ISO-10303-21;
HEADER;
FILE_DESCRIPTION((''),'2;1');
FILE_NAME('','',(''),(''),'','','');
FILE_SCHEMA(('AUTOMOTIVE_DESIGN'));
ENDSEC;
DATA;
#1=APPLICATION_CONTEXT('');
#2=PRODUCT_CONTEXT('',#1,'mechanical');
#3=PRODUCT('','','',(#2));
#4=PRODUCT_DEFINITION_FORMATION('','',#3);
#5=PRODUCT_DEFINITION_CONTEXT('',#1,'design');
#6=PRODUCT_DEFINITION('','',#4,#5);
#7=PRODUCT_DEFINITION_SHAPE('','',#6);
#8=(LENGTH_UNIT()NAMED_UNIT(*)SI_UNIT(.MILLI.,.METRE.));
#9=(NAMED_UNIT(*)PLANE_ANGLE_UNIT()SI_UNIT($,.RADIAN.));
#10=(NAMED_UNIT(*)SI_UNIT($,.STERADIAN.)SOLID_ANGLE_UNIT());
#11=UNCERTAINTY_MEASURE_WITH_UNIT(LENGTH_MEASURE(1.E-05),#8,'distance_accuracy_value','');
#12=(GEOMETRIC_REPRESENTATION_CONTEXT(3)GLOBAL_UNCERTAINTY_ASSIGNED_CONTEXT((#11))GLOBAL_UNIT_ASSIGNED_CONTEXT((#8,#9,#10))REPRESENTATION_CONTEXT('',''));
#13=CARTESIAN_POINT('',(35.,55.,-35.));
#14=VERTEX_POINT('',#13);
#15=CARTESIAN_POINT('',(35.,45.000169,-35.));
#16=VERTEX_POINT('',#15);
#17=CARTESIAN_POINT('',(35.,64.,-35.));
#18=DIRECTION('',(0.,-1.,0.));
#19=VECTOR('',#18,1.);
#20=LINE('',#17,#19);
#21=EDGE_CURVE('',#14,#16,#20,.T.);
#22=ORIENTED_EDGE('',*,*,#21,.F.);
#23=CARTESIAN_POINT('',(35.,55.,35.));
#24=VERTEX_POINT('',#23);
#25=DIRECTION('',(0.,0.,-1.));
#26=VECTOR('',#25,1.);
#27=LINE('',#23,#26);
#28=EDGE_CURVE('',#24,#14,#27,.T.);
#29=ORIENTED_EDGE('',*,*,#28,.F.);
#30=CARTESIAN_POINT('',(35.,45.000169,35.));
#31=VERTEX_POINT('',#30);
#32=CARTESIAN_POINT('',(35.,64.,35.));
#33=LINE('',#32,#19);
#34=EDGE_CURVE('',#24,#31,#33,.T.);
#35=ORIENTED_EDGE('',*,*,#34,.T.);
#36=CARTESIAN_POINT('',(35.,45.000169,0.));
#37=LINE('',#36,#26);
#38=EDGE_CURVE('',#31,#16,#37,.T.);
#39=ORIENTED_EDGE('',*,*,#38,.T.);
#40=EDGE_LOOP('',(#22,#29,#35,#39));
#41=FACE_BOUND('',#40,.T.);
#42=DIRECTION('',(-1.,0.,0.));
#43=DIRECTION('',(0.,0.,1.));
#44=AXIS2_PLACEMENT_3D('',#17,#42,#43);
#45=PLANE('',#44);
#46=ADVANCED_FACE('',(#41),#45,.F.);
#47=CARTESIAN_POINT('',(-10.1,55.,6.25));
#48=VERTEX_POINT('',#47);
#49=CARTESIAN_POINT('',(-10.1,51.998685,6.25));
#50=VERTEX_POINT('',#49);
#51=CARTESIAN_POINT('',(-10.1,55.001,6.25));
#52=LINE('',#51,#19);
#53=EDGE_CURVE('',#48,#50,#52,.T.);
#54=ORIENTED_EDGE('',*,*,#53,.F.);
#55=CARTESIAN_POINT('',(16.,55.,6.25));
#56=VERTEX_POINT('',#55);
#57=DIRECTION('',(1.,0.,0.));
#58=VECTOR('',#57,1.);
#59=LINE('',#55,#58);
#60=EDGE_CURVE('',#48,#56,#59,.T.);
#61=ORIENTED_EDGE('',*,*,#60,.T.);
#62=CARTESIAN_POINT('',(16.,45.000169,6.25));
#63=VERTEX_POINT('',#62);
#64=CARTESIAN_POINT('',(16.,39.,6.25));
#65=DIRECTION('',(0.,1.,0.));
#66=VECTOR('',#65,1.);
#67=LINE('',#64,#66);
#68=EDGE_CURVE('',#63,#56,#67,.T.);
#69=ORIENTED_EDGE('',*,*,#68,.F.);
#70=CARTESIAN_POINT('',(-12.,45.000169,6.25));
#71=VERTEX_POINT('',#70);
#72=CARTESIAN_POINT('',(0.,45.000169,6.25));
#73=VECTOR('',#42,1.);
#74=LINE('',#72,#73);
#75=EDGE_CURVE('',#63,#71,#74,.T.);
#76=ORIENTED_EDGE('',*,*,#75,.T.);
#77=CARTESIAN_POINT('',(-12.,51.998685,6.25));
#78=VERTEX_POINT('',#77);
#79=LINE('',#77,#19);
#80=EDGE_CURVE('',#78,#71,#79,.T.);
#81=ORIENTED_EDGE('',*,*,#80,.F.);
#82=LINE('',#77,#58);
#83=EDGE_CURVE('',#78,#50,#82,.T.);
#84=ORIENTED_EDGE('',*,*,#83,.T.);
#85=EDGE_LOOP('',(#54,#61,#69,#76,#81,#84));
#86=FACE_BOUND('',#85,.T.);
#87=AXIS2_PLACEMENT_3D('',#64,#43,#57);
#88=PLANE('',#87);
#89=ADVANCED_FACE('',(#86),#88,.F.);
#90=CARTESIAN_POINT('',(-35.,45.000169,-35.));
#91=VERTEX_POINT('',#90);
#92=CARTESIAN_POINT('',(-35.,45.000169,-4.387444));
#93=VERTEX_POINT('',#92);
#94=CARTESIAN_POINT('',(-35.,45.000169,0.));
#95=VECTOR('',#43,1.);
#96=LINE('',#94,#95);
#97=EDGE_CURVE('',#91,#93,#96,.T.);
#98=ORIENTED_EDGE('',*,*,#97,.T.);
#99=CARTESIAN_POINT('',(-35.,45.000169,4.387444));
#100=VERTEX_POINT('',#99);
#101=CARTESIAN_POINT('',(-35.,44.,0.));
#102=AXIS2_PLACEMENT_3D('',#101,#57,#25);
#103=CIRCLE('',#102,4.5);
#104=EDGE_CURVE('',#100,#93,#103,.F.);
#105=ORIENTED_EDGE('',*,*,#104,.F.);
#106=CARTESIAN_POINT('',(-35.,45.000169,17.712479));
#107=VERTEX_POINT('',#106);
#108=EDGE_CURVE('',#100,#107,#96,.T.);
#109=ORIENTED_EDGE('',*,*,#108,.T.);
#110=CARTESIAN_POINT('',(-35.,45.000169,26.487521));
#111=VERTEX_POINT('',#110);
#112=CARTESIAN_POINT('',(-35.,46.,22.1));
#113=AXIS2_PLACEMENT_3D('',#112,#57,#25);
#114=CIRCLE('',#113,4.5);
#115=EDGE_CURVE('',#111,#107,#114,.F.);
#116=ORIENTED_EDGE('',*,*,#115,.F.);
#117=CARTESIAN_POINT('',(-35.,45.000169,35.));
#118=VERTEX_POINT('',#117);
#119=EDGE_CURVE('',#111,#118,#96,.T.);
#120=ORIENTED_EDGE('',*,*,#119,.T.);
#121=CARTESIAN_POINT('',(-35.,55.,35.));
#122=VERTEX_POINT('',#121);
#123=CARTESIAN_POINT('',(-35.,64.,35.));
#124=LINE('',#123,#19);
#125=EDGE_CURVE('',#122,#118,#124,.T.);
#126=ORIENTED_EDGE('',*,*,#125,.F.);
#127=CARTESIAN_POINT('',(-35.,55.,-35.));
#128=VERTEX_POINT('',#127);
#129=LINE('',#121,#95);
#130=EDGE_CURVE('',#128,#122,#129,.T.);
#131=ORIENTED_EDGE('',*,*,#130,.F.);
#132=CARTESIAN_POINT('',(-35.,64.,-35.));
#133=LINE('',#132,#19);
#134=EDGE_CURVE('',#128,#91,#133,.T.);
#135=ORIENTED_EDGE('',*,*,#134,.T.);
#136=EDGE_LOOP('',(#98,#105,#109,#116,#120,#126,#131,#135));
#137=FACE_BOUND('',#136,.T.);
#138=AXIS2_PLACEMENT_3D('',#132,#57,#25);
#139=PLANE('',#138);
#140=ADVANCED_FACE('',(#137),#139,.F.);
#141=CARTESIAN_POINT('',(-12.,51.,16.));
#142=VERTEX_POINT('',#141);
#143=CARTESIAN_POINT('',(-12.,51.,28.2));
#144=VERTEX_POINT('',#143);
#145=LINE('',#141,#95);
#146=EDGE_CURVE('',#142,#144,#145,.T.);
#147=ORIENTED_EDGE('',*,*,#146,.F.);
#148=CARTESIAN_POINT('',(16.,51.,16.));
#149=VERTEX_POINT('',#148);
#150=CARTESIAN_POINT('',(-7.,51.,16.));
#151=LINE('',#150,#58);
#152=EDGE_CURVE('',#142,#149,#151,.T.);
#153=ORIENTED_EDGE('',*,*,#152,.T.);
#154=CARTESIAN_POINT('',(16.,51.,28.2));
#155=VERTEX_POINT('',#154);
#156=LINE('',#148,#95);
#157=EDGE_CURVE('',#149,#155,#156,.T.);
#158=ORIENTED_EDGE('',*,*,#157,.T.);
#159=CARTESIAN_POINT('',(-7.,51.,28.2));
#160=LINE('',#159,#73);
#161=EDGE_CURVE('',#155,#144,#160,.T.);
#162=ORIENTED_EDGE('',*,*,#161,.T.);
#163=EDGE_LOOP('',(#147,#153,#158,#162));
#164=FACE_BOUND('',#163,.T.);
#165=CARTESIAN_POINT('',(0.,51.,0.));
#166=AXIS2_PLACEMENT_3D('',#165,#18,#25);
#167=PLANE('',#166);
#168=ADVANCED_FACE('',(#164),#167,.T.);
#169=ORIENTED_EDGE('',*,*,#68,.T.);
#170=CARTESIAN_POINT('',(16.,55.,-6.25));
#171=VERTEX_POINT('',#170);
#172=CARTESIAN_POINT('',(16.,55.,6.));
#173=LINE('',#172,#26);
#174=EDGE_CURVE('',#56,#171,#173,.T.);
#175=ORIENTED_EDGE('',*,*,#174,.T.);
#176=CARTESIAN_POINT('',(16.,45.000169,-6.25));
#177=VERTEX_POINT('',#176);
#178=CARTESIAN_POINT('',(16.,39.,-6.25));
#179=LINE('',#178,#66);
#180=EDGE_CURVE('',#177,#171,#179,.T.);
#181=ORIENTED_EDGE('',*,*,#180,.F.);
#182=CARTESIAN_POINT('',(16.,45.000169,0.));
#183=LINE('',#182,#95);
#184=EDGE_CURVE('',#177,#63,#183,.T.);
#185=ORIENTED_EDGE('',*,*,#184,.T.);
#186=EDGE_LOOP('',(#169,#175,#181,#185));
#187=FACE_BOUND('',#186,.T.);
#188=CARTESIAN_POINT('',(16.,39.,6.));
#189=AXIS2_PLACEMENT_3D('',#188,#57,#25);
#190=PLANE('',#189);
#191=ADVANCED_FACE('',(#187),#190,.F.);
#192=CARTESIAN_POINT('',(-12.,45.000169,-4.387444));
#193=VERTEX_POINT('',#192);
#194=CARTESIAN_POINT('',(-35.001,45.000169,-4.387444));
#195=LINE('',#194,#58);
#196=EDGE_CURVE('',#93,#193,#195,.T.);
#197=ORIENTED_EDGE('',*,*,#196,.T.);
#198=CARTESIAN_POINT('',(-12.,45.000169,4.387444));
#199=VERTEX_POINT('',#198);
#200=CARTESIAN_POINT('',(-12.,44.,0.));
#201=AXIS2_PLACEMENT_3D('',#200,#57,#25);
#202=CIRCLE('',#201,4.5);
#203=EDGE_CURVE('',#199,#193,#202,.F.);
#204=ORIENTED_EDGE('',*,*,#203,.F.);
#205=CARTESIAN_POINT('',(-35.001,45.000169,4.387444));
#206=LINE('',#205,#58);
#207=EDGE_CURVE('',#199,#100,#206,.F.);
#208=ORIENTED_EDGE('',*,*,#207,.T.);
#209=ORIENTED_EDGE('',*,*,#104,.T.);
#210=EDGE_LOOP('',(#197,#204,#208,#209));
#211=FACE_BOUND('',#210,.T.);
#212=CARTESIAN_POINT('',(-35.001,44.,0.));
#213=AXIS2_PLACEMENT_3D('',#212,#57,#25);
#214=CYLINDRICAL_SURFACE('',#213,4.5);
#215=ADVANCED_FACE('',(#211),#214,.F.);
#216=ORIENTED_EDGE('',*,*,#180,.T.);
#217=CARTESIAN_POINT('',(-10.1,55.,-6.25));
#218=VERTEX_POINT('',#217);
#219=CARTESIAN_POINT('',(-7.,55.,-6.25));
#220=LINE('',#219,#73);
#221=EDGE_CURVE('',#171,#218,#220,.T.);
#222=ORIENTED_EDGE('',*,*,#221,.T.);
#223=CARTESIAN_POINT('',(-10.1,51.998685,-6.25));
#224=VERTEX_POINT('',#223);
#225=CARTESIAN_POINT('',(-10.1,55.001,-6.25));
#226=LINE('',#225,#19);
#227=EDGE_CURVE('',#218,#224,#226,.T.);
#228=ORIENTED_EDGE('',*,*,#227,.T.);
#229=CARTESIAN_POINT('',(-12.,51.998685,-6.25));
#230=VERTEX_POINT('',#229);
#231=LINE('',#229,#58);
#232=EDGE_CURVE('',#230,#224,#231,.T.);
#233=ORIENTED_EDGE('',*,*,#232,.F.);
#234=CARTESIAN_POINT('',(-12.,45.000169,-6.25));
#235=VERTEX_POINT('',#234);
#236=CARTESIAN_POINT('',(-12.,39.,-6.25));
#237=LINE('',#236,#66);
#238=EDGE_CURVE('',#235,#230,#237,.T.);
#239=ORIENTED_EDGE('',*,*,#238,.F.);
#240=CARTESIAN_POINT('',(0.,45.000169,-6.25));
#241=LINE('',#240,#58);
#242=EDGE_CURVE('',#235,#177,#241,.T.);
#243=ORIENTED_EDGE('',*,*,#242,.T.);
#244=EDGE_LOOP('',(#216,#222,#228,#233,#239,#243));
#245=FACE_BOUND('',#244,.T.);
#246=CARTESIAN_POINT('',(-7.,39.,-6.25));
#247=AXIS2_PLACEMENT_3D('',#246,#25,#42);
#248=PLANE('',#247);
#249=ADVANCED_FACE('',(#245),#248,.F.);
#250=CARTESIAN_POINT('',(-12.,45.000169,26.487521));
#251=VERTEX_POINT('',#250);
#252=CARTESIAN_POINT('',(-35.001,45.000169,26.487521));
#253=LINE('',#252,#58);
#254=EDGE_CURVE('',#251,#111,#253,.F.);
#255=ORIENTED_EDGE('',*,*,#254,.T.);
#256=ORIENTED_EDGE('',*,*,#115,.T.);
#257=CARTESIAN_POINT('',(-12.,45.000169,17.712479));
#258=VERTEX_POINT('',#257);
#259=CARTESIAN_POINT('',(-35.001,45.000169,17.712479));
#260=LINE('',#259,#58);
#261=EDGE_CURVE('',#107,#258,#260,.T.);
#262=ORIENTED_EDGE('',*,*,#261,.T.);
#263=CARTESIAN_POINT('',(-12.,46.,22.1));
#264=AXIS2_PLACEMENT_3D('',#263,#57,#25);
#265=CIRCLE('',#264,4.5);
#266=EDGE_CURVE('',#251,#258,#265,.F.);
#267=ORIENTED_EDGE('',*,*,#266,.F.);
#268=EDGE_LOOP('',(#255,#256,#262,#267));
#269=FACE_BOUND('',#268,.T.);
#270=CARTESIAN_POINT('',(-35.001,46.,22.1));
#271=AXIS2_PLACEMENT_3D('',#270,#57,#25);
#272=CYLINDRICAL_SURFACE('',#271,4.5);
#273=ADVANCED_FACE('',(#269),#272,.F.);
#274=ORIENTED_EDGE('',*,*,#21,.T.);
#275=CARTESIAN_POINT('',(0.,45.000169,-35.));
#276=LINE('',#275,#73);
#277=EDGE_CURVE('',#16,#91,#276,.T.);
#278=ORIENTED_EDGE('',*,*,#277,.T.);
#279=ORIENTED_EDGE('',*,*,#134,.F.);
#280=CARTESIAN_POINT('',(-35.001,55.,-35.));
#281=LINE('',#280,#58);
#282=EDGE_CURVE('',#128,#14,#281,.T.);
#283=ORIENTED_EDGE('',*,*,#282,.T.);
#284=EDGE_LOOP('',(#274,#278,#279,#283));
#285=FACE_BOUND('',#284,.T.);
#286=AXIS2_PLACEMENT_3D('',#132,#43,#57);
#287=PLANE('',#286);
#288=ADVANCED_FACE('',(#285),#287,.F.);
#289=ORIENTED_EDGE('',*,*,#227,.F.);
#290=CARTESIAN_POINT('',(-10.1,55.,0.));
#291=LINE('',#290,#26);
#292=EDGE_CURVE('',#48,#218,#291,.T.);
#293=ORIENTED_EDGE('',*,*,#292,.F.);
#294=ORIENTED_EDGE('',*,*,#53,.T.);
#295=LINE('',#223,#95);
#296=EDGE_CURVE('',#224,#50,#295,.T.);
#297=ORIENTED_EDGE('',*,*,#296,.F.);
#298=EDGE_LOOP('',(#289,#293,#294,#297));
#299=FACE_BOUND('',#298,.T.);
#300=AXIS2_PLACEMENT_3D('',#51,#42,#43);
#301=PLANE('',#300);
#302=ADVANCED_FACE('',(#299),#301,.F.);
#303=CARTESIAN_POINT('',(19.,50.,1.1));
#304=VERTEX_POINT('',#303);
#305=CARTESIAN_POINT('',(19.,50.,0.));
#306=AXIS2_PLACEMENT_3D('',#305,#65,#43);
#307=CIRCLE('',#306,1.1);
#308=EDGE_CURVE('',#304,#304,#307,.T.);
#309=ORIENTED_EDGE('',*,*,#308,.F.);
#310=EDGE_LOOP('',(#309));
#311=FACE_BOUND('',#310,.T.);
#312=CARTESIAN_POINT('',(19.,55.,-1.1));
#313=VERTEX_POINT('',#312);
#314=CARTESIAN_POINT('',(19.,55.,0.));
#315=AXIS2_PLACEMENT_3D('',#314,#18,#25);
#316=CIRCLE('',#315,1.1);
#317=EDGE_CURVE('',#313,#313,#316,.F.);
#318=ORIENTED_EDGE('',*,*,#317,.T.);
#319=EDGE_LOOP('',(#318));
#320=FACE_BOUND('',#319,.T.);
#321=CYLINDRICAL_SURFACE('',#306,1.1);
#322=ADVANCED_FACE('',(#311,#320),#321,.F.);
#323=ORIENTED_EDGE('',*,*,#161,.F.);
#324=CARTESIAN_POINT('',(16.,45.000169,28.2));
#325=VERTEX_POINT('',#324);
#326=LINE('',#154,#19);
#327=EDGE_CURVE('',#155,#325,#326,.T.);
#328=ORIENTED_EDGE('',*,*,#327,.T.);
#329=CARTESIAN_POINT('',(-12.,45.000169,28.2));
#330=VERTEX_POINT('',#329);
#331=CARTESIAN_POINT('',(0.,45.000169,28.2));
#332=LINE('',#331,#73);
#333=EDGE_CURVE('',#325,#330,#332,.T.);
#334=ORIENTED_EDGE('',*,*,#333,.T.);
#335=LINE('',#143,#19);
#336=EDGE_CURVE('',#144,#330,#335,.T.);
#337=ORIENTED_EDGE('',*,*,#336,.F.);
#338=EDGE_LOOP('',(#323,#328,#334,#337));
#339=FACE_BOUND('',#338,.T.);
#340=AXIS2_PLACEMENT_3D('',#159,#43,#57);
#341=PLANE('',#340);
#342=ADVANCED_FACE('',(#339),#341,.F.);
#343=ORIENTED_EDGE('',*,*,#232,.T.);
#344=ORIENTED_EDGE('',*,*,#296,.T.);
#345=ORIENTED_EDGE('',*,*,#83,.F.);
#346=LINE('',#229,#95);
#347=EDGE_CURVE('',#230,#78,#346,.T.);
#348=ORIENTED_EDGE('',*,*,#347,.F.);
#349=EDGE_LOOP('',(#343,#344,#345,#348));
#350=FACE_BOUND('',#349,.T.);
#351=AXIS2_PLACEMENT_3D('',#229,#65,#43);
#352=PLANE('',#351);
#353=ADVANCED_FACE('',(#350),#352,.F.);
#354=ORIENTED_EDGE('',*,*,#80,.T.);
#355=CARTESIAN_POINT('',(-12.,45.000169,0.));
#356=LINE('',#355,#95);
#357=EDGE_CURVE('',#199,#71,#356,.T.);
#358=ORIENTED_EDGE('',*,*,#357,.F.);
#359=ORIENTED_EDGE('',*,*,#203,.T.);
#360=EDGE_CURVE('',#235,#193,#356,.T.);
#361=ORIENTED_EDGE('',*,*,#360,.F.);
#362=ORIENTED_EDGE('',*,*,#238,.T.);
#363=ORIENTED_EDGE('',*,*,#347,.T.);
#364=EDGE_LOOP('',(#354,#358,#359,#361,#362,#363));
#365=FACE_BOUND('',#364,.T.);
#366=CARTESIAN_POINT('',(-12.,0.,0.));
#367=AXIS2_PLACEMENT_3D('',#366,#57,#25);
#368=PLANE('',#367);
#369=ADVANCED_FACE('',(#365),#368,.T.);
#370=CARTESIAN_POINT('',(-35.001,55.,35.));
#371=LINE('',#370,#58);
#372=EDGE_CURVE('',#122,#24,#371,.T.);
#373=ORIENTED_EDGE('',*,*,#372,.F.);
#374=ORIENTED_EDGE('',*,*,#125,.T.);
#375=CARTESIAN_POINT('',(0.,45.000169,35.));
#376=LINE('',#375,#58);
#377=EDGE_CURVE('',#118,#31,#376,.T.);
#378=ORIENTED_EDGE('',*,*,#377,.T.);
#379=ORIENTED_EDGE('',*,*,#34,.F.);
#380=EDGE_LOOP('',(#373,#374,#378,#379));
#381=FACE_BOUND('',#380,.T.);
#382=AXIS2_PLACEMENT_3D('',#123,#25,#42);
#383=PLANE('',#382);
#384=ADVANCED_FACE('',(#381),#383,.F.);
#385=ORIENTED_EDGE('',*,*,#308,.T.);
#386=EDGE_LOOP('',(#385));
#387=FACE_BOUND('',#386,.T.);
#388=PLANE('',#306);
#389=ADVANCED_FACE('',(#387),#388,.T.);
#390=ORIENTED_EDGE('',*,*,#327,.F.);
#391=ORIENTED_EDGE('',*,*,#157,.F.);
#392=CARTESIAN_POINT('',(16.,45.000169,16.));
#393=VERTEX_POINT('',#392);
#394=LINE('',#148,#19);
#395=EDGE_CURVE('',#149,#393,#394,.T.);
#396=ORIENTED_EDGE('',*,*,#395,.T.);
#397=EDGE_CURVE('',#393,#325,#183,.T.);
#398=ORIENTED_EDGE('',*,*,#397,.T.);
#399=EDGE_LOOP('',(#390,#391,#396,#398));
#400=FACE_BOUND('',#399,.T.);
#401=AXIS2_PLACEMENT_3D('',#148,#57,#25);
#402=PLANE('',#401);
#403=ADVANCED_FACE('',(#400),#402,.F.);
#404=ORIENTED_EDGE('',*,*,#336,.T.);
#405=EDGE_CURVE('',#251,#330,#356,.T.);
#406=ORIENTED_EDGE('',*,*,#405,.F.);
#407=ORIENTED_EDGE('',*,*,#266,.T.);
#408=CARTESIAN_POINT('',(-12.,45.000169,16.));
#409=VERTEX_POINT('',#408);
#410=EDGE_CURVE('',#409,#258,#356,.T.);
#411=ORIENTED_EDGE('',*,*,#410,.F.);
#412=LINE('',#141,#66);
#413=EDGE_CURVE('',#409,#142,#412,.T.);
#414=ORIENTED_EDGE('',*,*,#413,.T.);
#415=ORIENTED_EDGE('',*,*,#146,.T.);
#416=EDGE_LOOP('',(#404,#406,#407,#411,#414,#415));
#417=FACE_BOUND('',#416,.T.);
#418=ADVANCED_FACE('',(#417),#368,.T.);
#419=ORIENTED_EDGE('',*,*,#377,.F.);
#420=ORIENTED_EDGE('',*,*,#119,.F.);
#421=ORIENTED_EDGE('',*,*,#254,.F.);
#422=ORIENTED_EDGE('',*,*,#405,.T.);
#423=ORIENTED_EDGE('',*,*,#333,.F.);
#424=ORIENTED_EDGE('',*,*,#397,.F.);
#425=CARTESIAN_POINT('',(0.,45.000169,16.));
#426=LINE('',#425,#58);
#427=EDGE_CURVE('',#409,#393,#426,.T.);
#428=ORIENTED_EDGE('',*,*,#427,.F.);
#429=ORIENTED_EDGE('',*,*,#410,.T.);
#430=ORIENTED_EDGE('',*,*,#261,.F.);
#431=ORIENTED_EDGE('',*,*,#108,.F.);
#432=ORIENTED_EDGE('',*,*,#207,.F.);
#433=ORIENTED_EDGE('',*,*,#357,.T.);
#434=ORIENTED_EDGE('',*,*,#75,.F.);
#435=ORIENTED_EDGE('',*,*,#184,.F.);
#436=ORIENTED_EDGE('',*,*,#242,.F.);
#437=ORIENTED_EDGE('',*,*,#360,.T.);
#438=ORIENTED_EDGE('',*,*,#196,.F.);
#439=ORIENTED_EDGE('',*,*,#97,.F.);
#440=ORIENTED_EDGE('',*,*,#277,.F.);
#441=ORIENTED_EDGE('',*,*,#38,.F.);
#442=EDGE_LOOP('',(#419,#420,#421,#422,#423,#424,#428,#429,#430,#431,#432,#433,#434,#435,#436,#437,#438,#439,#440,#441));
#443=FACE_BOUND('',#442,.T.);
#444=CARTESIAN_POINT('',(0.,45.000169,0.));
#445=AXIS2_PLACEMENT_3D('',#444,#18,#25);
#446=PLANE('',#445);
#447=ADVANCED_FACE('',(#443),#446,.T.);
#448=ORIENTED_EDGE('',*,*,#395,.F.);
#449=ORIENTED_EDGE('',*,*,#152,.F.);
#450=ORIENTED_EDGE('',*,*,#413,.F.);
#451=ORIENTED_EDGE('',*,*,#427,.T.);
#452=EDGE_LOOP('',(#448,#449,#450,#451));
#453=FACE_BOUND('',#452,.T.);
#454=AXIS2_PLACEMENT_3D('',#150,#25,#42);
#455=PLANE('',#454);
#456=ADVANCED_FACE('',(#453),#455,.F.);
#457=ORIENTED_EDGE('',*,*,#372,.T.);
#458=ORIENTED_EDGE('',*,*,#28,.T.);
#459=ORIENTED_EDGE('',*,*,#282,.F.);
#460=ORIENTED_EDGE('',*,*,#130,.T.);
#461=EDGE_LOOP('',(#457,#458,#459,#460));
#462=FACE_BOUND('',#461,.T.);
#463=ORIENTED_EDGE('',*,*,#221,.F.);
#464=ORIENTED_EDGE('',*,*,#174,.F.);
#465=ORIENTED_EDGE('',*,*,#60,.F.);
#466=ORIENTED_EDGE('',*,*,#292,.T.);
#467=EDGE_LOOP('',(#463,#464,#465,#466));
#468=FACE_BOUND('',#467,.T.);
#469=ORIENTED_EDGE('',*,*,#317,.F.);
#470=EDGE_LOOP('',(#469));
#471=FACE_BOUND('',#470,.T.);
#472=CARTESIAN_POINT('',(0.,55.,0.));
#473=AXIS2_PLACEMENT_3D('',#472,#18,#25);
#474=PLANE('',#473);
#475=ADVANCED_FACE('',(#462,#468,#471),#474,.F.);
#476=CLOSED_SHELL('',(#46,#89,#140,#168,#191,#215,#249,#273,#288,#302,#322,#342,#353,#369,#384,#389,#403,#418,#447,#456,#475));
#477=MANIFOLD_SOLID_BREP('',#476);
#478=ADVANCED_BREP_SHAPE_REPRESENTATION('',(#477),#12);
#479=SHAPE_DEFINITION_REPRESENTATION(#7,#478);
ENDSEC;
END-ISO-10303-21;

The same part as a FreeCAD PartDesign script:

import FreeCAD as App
import Part
import Sketcher
from FreeCAD import Vector
Q = App.Units.Quantity

doc = App.newDocument("Part")
body = doc.addObject("PartDesign::Body", "Body")

# Sketch on XZ plane
sketch1 = doc.addObject("Sketcher::SketchObject", "Sketch")
body.addObject(sketch1)
sketch1.AttachmentSupport = (doc.XZ_Plane, [""])
sketch1.MapMode = "FlatFace"
sketch1.addGeometry(Part.LineSegment(Vector(-32, -32, 0), Vector(-32, 32, 0)), False)
sketch1.addGeometry(Part.LineSegment(Vector(-32, 32, 0), Vector(32, 32, 0)), False)
sketch1.addGeometry(Part.LineSegment(Vector(32, 32, 0), Vector(32, -32, 0)), False)
sketch1.addGeometry(Part.LineSegment(Vector(32, -32, 0), Vector(-32, -32, 0)), False)
sketch1.addConstraint(Sketcher.Constraint("Coincident", 0, 2, 1, 1))
sketch1.addConstraint(Sketcher.Constraint("Coincident", 1, 2, 2, 1))
sketch1.addConstraint(Sketcher.Constraint("Coincident", 2, 2, 3, 1))
sketch1.addConstraint(Sketcher.Constraint("Coincident", 3, 2, 0, 1))
sketch1.addConstraint(Sketcher.Constraint("Vertical", 0))
sketch1.addConstraint(Sketcher.Constraint("Horizontal", 1))
sketch1.addConstraint(Sketcher.Constraint("Vertical", 2))
sketch1.addConstraint(Sketcher.Constraint("Horizontal", 3))
sketch1.addConstraint(Sketcher.Constraint("Symmetric", 0, 2, 2, 2, -1, 1))
sketch1.addConstraint(Sketcher.Constraint("Equal", 3, 0))
sketch1.addConstraint(Sketcher.Constraint("DistanceX", 1, 1, 1, 2, Q("64 mm")))
pad1 = doc.addObject("PartDesign::Pad", "Pad")
body.addObject(pad1)
pad1.Profile = sketch1
pad1.Length = 60
pad1.Reversed = True

# Sketch on XZ plane
sketch2 = doc.addObject("Sketcher::SketchObject", "Sketch001")
body.addObject(sketch2)
sketch2.AttachmentSupport = (doc.XZ_Plane, [""])
sketch2.MapMode = "FlatFace"
sketch2.addGeometry(Part.LineSegment(Vector(-35, -35, 0), Vector(-35, 35, 0)), False)
sketch2.addGeometry(Part.LineSegment(Vector(-35, 35, 0), Vector(35, 35, 0)), False)
sketch2.addGeometry(Part.LineSegment(Vector(35, 35, 0), Vector(35, -35, 0)), False)
sketch2.addGeometry(Part.LineSegment(Vector(35, -35, 0), Vector(-35, -35, 0)), False)
sketch2.addGeometry(Part.LineSegment(Vector(32, 32, 0), Vector(-32, 32, 0)), False)
sketch2.addGeometry(Part.LineSegment(Vector(-32, 32, 0), Vector(-32, -32, 0)), False)
sketch2.addGeometry(Part.LineSegment(Vector(-32, -32, 0), Vector(32, -32, 0)), False)
sketch2.addGeometry(Part.LineSegment(Vector(32, -32, 0), Vector(32, 32, 0)), False)
sketch2.addConstraint(Sketcher.Constraint("Coincident", 0, 2, 1, 1))
sketch2.addConstraint(Sketcher.Constraint("Coincident", 1, 2, 2, 1))
sketch2.addConstraint(Sketcher.Constraint("Coincident", 2, 2, 3, 1))
sketch2.addConstraint(Sketcher.Constraint("Coincident", 3, 2, 0, 1))
sketch2.addConstraint(Sketcher.Constraint("Coincident", 4, 2, 5, 1))
sketch2.addConstraint(Sketcher.Constraint("Coincident", 5, 2, 6, 1))
sketch2.addConstraint(Sketcher.Constraint("Coincident", 6, 2, 7, 1))
sketch2.addConstraint(Sketcher.Constraint("Coincident", 7, 2, 4, 1))
sketch2.addConstraint(Sketcher.Constraint("Vertical", 0))
sketch2.addConstraint(Sketcher.Constraint("Horizontal", 1))
sketch2.addConstraint(Sketcher.Constraint("Vertical", 2))
sketch2.addConstraint(Sketcher.Constraint("Horizontal", 3))
sketch2.addConstraint(Sketcher.Constraint("Horizontal", 4))
sketch2.addConstraint(Sketcher.Constraint("Vertical", 5))
sketch2.addConstraint(Sketcher.Constraint("Horizontal", 6))
sketch2.addConstraint(Sketcher.Constraint("Vertical", 7))
sketch2.addConstraint(Sketcher.Constraint("Symmetric", 0, 2, 2, 2, -1, 1))
sketch2.addConstraint(Sketcher.Constraint("Symmetric", 4, 2, 6, 2, -1, 1))
sketch2.addConstraint(Sketcher.Constraint("Equal", 3, 0))
sketch2.addConstraint(Sketcher.Constraint("Equal", 6, 5))
sketch2.addConstraint(Sketcher.Constraint("DistanceX", 1, 1, 1, 2, Q("70 mm")))
sketch2.addConstraint(Sketcher.Constraint("DistanceX", 4, 2, 4, 1, Q("64 mm")))
pad2 = doc.addObject("PartDesign::Pad", "Pad001")
body.addObject(pad2)
pad2.Profile = sketch2
pad2.Length = 64
pad2.Reversed = True

# Sketch on XZ plane
sketch3 = doc.addObject("Sketcher::SketchObject", "Sketch002")
body.addObject(sketch3)
sketch3.AttachmentSupport = (doc.XZ_Plane, [""])
sketch3.MapMode = "FlatFace"
sketch3.AttachmentOffset = App.Placement(Vector(0, 0, -60), App.Rotation())
sketch3.addGeometry(Part.LineSegment(Vector(-7, 6.25, 0), Vector(16, 6.25, 0)), False)
sketch3.addGeometry(Part.LineSegment(Vector(16, 6.25, 0), Vector(16, -6.25, 0)), False)
sketch3.addGeometry(Part.LineSegment(Vector(16, -6.25, 0), Vector(-7, -6.25, 0)), False)
sketch3.addGeometry(Part.LineSegment(Vector(-7, -6.25, 0), Vector(-7, 6.25, 0)), False)
sketch3.addConstraint(Sketcher.Constraint("Coincident", 0, 2, 1, 1))
sketch3.addConstraint(Sketcher.Constraint("Coincident", 1, 2, 2, 1))
sketch3.addConstraint(Sketcher.Constraint("Coincident", 2, 2, 3, 1))
sketch3.addConstraint(Sketcher.Constraint("Coincident", 3, 2, 0, 1))
sketch3.addConstraint(Sketcher.Constraint("Horizontal", 0))
sketch3.addConstraint(Sketcher.Constraint("Vertical", 1))
sketch3.addConstraint(Sketcher.Constraint("Horizontal", 2))
sketch3.addConstraint(Sketcher.Constraint("Vertical", 3))
sketch3.addConstraint(Sketcher.Constraint("DistanceX", 0, 1, 0, 2, Q("23 mm")))
sketch3.addConstraint(Sketcher.Constraint("DistanceY", 1, 2, 1, 1, Q("12.5 mm")))
sketch3.addConstraint(Sketcher.Constraint("DistanceX", -1, 1, 0, 2, Q("16 mm")))
sketch3.addConstraint(Sketcher.Constraint("DistanceY", -1, 1, 0, 2, Q("6.25 mm")))
pocket1 = doc.addObject("PartDesign::Pocket", "Pocket")
body.addObject(pocket1)
pocket1.Profile = sketch3
pocket1.Length = 21
pocket1.Reversed = True

# Sketch on XZ plane
sketch4 = doc.addObject("Sketcher::SketchObject", "Sketch003")
body.addObject(sketch4)
sketch4.AttachmentSupport = (doc.XZ_Plane, [""])
sketch4.MapMode = "FlatFace"
sketch4.AttachmentOffset = App.Placement(Vector(0, 0, -60), App.Rotation())
sketch4.addGeometry(Part.Circle(Vector(19, 0, 0), Vector(0, 0, 1), 1.1), False)
sketch4.addGeometry(Part.Circle(Vector(-9, 0, 0), Vector(0, 0, 1), 1.1), False)
sketch4.addConstraint(Sketcher.Constraint("Equal", 0, 1))
sketch4.addConstraint(Sketcher.Constraint("PointOnObject", 0, 3, -1))
sketch4.addConstraint(Sketcher.Constraint("PointOnObject", 1, 3, -1))
sketch4.addConstraint(Sketcher.Constraint("Diameter", 0, Q("2.2 mm")))
sketch4.addConstraint(Sketcher.Constraint("DistanceX", -1, 1, 0, 3, Q("19 mm")))
sketch4.addConstraint(Sketcher.Constraint("DistanceX", 1, 3, -1, 1, Q("9 mm")))
pocket2 = doc.addObject("PartDesign::Pocket", "Pocket001")
body.addObject(pocket2)
pocket2.Profile = sketch4
pocket2.Length = 10
pocket2.Reversed = True

# Sketch on YZ plane
sketch5 = doc.addObject("Sketcher::SketchObject", "Sketch004")
body.addObject(sketch5)
sketch5.AttachmentSupport = (doc.YZ_Plane, [""])
sketch5.MapMode = "FlatFace"
sketch5.AttachmentOffset = App.Placement(Vector(0, 0, -7), App.Rotation())
sketch5.addGeometry(Part.Circle(Vector(44, 0, 0), Vector(0, 0, 1), 4.5), False)
sketch5.addConstraint(Sketcher.Constraint("PointOnObject", 0, 3, -1))
sketch5.addConstraint(Sketcher.Constraint("Diameter", 0, Q("9 mm")))
sketch5.addConstraint(Sketcher.Constraint("DistanceX", -1, 1, 0, 3, Q("44 mm")))
pocket3 = doc.addObject("PartDesign::Pocket", "Pocket002")
body.addObject(pocket3)
pocket3.Profile = sketch5
pocket3.Type = "UpToFirst"

# Sketch on XZ plane
sketch6 = doc.addObject("Sketcher::SketchObject", "Sketch005")
body.addObject(sketch6)
sketch6.AttachmentSupport = (doc.XZ_Plane, [""])
sketch6.MapMode = "FlatFace"
sketch6.addGeometry(Part.LineSegment(Vector(-35, 35, 0), Vector(-35, -35, 0)), False)
sketch6.addGeometry(Part.LineSegment(Vector(-35, -35, 0), Vector(35, -35, 0)), False)
sketch6.addGeometry(Part.LineSegment(Vector(35, -35, 0), Vector(35, 35, 0)), False)
sketch6.addGeometry(Part.LineSegment(Vector(35, 35, 0), Vector(-35, 35, 0)), False)
sketch6.addConstraint(Sketcher.Constraint("Coincident", 0, 2, 1, 1))
sketch6.addConstraint(Sketcher.Constraint("Coincident", 1, 2, 2, 1))
sketch6.addConstraint(Sketcher.Constraint("Coincident", 2, 2, 3, 1))
sketch6.addConstraint(Sketcher.Constraint("Coincident", 3, 2, 0, 1))
sketch6.addConstraint(Sketcher.Constraint("Vertical", 0))
sketch6.addConstraint(Sketcher.Constraint("Horizontal", 1))
sketch6.addConstraint(Sketcher.Constraint("Vertical", 2))
sketch6.addConstraint(Sketcher.Constraint("Horizontal", 3))
sketch6.addConstraint(Sketcher.Constraint("Symmetric", 0, 2, 2, 2, -1, 1))
sketch6.addConstraint(Sketcher.Constraint("Equal", 3, 0))
sketch6.addConstraint(Sketcher.Constraint("DistanceX", 1, 1, 1, 2, Q("70 mm")))
pocket4 = doc.addObject("PartDesign::Pocket", "Pocket003")
body.addObject(pocket4)
pocket4.Profile = sketch6
pocket4.Length = 30

# Sketch on XZ plane
sketch7 = doc.addObject("Sketcher::SketchObject", "Sketch006")
body.addObject(sketch7)
sketch7.AttachmentSupport = (doc.XZ_Plane, [""])
sketch7.MapMode = "FlatFace"
sketch7.AttachmentOffset = App.Placement(Vector(0, 0, -30), App.Rotation())
sketch7.addGeometry(Part.LineSegment(Vector(-7, 28.2, 0), Vector(-7, 16, 0)), False)
sketch7.addGeometry(Part.LineSegment(Vector(-7, 16, 0), Vector(16, 16, 0)), False)
sketch7.addGeometry(Part.LineSegment(Vector(16, 16, 0), Vector(16, 28.2, 0)), False)
sketch7.addGeometry(Part.LineSegment(Vector(16, 28.2, 0), Vector(-7, 28.2, 0)), False)
sketch7.addConstraint(Sketcher.Constraint("Coincident", 0, 2, 1, 1))
sketch7.addConstraint(Sketcher.Constraint("Coincident", 1, 2, 2, 1))
sketch7.addConstraint(Sketcher.Constraint("Coincident", 2, 2, 3, 1))
sketch7.addConstraint(Sketcher.Constraint("Coincident", 3, 2, 0, 1))
sketch7.addConstraint(Sketcher.Constraint("Vertical", 0))
sketch7.addConstraint(Sketcher.Constraint("Horizontal", 1))
sketch7.addConstraint(Sketcher.Constraint("Vertical", 2))
sketch7.addConstraint(Sketcher.Constraint("Horizontal", 3))
sketch7.addConstraint(Sketcher.Constraint("DistanceX", 1, 1, 1, 2, Q("23 mm")))
sketch7.addConstraint(Sketcher.Constraint("DistanceY", 0, 2, 0, 1, Q("12.2 mm")))
sketch7.addConstraint(Sketcher.Constraint("DistanceX", 0, 2, -1, 1, Q("7 mm")))
sketch7.addConstraint(Sketcher.Constraint("DistanceY", -1, 1, 0, 2, Q("16 mm")))
pocket5 = doc.addObject("PartDesign::Pocket", "Pocket004")
body.addObject(pocket5)
pocket5.Profile = sketch7
pocket5.Length = 21

# Sketch on YZ plane
sketch8 = doc.addObject("Sketcher::SketchObject", "Sketch007")
body.addObject(sketch8)
sketch8.AttachmentSupport = (doc.YZ_Plane, [""])
sketch8.MapMode = "FlatFace"
sketch8.AttachmentOffset = App.Placement(Vector(0, 0, -7), App.Rotation())
sketch8.addGeometry(Part.Circle(Vector(46, 22.1, 0), Vector(0, 0, 1), 4.5), False)
sketch8.addConstraint(Sketcher.Constraint("Diameter", 0, Q("9 mm")))
sketch8.addConstraint(Sketcher.Constraint("DistanceX", -1, 1, 0, 3, Q("46 mm")))
sketch8.addConstraint(Sketcher.Constraint("DistanceY", -1, 1, 0, 3, Q("22.1 mm")))
pocket6 = doc.addObject("PartDesign::Pocket", "Pocket005")
body.addObject(pocket6)
pocket6.Profile = sketch8
pocket6.Type = "UpToFirst"

# Sketch on XZ plane
sketch9 = doc.addObject("Sketcher::SketchObject", "Sketch008")
body.addObject(sketch9)
sketch9.AttachmentSupport = (doc.XZ_Plane, [""])
sketch9.MapMode = "FlatFace"
sketch9.AttachmentOffset = App.Placement(Vector(0, 0, -30), App.Rotation())
sketch9.addGeometry(Part.Circle(Vector(19, 22.1, 0), Vector(0, 0, 1), 1.1), False)
sketch9.addGeometry(Part.Circle(Vector(-9, 22.1, 0), Vector(0, 0, 1), 1.1), False)
sketch9.addConstraint(Sketcher.Constraint("Equal", 0, 1))
sketch9.addConstraint(Sketcher.Constraint("Horizontal", 0, 3, 1, 3))
sketch9.addConstraint(Sketcher.Constraint("Diameter", 0, Q("2.2 mm")))
sketch9.addConstraint(Sketcher.Constraint("DistanceX", -1, 1, 0, 3, Q("19 mm")))
sketch9.addConstraint(Sketcher.Constraint("DistanceX", 1, 3, -1, 1, Q("9 mm")))
sketch9.addConstraint(Sketcher.Constraint("DistanceY", -1, 1, 0, 3, Q("22.1 mm")))
pocket7 = doc.addObject("PartDesign::Pocket", "Pocket006")
body.addObject(pocket7)
pocket7.Profile = sketch9
pocket7.Length = 10

# Sketch on XZ plane
sketch10 = doc.addObject("Sketcher::SketchObject", "Sketch009")
body.addObject(sketch10)
sketch10.AttachmentSupport = (doc.XZ_Plane, [""])
sketch10.MapMode = "FlatFace"
sketch10.AttachmentOffset = App.Placement(Vector(0, 0, -30), App.Rotation())
sketch10.addGeometry(Part.Circle(Vector(0, -22.1, 0), Vector(0, 0, 1), 3.7), False)
sketch10.addConstraint(Sketcher.Constraint("PointOnObject", 0, 3, -2))
sketch10.addConstraint(Sketcher.Constraint("Diameter", 0, Q("7.4 mm")))
sketch10.addConstraint(Sketcher.Constraint("DistanceY", 0, 3, -1, 1, Q("22.1 mm")))
pocket8 = doc.addObject("PartDesign::Pocket", "Pocket007")
body.addObject(pocket8)
pocket8.Profile = sketch10
pocket8.Length = 10

# Sketch on XZ plane
sketch11 = doc.addObject("Sketcher::SketchObject", "Sketch010")
body.addObject(sketch11)
sketch11.AttachmentSupport = (doc.XZ_Plane, [""])
sketch11.MapMode = "FlatFace"
sketch11.AttachmentOffset = App.Placement(Vector(0, 0, -60), App.Rotation())
sketch11.addGeometry(Part.LineSegment(Vector(-32, -32, 0), Vector(-32, 32, 0)), False)
sketch11.addGeometry(Part.LineSegment(Vector(-32, 32, 0), Vector(32, 32, 0)), False)
sketch11.addGeometry(Part.LineSegment(Vector(32, 32, 0), Vector(32, -32, 0)), False)
sketch11.addGeometry(Part.LineSegment(Vector(32, -32, 0), Vector(-32, -32, 0)), False)
sketch11.addConstraint(Sketcher.Constraint("Coincident", 0, 2, 1, 1))
sketch11.addConstraint(Sketcher.Constraint("Coincident", 1, 2, 2, 1))
sketch11.addConstraint(Sketcher.Constraint("Coincident", 2, 2, 3, 1))
sketch11.addConstraint(Sketcher.Constraint("Coincident", 3, 2, 0, 1))
sketch11.addConstraint(Sketcher.Constraint("Vertical", 0))
sketch11.addConstraint(Sketcher.Constraint("Horizontal", 1))
sketch11.addConstraint(Sketcher.Constraint("Vertical", 2))
sketch11.addConstraint(Sketcher.Constraint("Horizontal", 3))
sketch11.addConstraint(Sketcher.Constraint("Symmetric", 0, 2, 2, 2, -1, 1))
sketch11.addConstraint(Sketcher.Constraint("Equal", 3, 0))
sketch11.addConstraint(Sketcher.Constraint("DistanceX", 1, 1, 1, 2, Q("64 mm")))
pocket9 = doc.addObject("PartDesign::Pocket", "Pocket008")
body.addObject(pocket9)
pocket9.Profile = sketch11
pocket9.Length = 5
pocket9.Reversed = True

# Sketch on YZ plane
sketch12 = doc.addObject("Sketcher::SketchObject", "Sketch011")
body.addObject(sketch12)
sketch12.AttachmentSupport = (doc.YZ_Plane, [""])
sketch12.MapMode = "FlatFace"
sketch12.AttachmentOffset = App.Placement(Vector(0, 0, -7), App.Rotation())
sketch12.addGeometry(Part.LineSegment(Vector(51.998685, 6.25, 0), Vector(39, 6.25, 0)), False)
sketch12.addGeometry(Part.LineSegment(Vector(39, 6.25, 0), Vector(39, -6.25, 0)), False)
sketch12.addGeometry(Part.LineSegment(Vector(39, -6.25, 0), Vector(51.998685, -6.25, 0)), False)
sketch12.addGeometry(Part.LineSegment(Vector(51.998685, -6.25, 0), Vector(51.998685, 6.25, 0)), False)
sketch12.addConstraint(Sketcher.Constraint("Coincident", 0, 2, 1, 1))
sketch12.addConstraint(Sketcher.Constraint("Coincident", 1, 2, 2, 1))
sketch12.addConstraint(Sketcher.Constraint("Coincident", 2, 2, 3, 1))
sketch12.addConstraint(Sketcher.Constraint("Coincident", 3, 2, 0, 1))
sketch12.addConstraint(Sketcher.Constraint("Horizontal", 0))
sketch12.addConstraint(Sketcher.Constraint("Vertical", 1))
sketch12.addConstraint(Sketcher.Constraint("Horizontal", 2))
sketch12.addConstraint(Sketcher.Constraint("Vertical", 3))
sketch12.addConstraint(Sketcher.Constraint("DistanceY", 1, 2, 1, 1, Q("12.5 mm")))
sketch12.addConstraint(Sketcher.Constraint("DistanceX", -1, 1, 0, 2, Q("39 mm")))
sketch12.addConstraint(Sketcher.Constraint("DistanceY", -1, 1, 0, 2, Q("6.25 mm")))
sketch12.addConstraint(Sketcher.Constraint("DistanceX", 0, 2, 0, 1, Q("12.998685 mm")))
pocket10 = doc.addObject("PartDesign::Pocket", "Pocket009")
body.addObject(pocket10)
pocket10.Profile = sketch12
pocket10.Length = 5

# Sketch on YZ plane
sketch13 = doc.addObject("Sketcher::SketchObject", "Sketch012")
body.addObject(sketch13)
sketch13.AttachmentSupport = (doc.YZ_Plane, [""])
sketch13.MapMode = "FlatFace"
sketch13.AttachmentOffset = App.Placement(Vector(0, 0, 35), App.Rotation())
sketch13.addGeometry(Part.LineSegment(Vector(64, 35, 0), Vector(55, 35, 0)), False)
sketch13.addGeometry(Part.LineSegment(Vector(55, 35, 0), Vector(55, -35, 0)), False)
sketch13.addGeometry(Part.LineSegment(Vector(55, -35, 0), Vector(64, -35, 0)), False)
sketch13.addGeometry(Part.LineSegment(Vector(64, -35, 0), Vector(64, 35, 0)), False)
sketch13.addConstraint(Sketcher.Constraint("Coincident", 0, 2, 1, 1))
sketch13.addConstraint(Sketcher.Constraint("Coincident", 1, 2, 2, 1))
sketch13.addConstraint(Sketcher.Constraint("Coincident", 2, 2, 3, 1))
sketch13.addConstraint(Sketcher.Constraint("Coincident", 3, 2, 0, 1))
sketch13.addConstraint(Sketcher.Constraint("Horizontal", 0))
sketch13.addConstraint(Sketcher.Constraint("Vertical", 1))
sketch13.addConstraint(Sketcher.Constraint("Horizontal", 2))
sketch13.addConstraint(Sketcher.Constraint("Vertical", 3))
sketch13.addConstraint(Sketcher.Constraint("DistanceX", 0, 2, 0, 1, Q("9 mm")))
sketch13.addConstraint(Sketcher.Constraint("DistanceY", 1, 2, 1, 1, Q("70 mm")))
sketch13.addConstraint(Sketcher.Constraint("DistanceX", -1, 1, 0, 2, Q("55 mm")))
sketch13.addConstraint(Sketcher.Constraint("DistanceY", -1, 1, 0, 2, Q("35 mm")))
pocket11 = doc.addObject("PartDesign::Pocket", "Pocket010")
body.addObject(pocket11)
pocket11.Profile = sketch13
pocket11.Length = 70

# Sketch on YZ plane
sketch14 = doc.addObject("Sketcher::SketchObject", "Sketch013")
body.addObject(sketch14)
sketch14.AttachmentSupport = (doc.YZ_Plane, [""])
sketch14.MapMode = "FlatFace"
sketch14.AttachmentOffset = App.Placement(Vector(0, 0, 35), App.Rotation())
sketch14.addGeometry(Part.LineSegment(Vector(35.000169, 35, 0), Vector(30, 35, 0)), False)
sketch14.addGeometry(Part.LineSegment(Vector(30, 35, 0), Vector(30, -35, 0)), False)
sketch14.addGeometry(Part.LineSegment(Vector(30, -35, 0), Vector(35.000169, -35, 0)), False)
sketch14.addGeometry(Part.LineSegment(Vector(35.000169, -35, 0), Vector(35.000169, 35, 0)), False)
sketch14.addConstraint(Sketcher.Constraint("Coincident", 0, 2, 1, 1))
sketch14.addConstraint(Sketcher.Constraint("Coincident", 1, 2, 2, 1))
sketch14.addConstraint(Sketcher.Constraint("Coincident", 2, 2, 3, 1))
sketch14.addConstraint(Sketcher.Constraint("Coincident", 3, 2, 0, 1))
sketch14.addConstraint(Sketcher.Constraint("Horizontal", 0))
sketch14.addConstraint(Sketcher.Constraint("Vertical", 1))
sketch14.addConstraint(Sketcher.Constraint("Horizontal", 2))
sketch14.addConstraint(Sketcher.Constraint("Vertical", 3))
sketch14.addConstraint(Sketcher.Constraint("DistanceY", 1, 2, 1, 1, Q("70 mm")))
sketch14.addConstraint(Sketcher.Constraint("DistanceX", -1, 1, 0, 2, Q("30 mm")))
sketch14.addConstraint(Sketcher.Constraint("DistanceY", -1, 1, 0, 2, Q("35 mm")))
sketch14.addConstraint(Sketcher.Constraint("DistanceX", 0, 2, 0, 1, Q("5.000169 mm")))
pocket12 = doc.addObject("PartDesign::Pocket", "Pocket011")
body.addObject(pocket12)
pocket12.Profile = sketch14
pocket12.Type = "UpToFirst"

# Sketch on YZ plane
sketch15 = doc.addObject("Sketcher::SketchObject", "Sketch014")
body.addObject(sketch15)
sketch15.AttachmentSupport = (doc.YZ_Plane, [""])
sketch15.MapMode = "FlatFace"
sketch15.AttachmentOffset = App.Placement(Vector(0, 0, -7), App.Rotation())
sketch15.addGeometry(Part.LineSegment(Vector(51, 16, 0), Vector(51, 28.2, 0)), False)
sketch15.addGeometry(Part.LineSegment(Vector(51, 28.2, 0), Vector(38.000169, 28.2, 0)), False)
sketch15.addGeometry(Part.LineSegment(Vector(38.000169, 28.2, 0), Vector(38.000169, 16, 0)), False)
sketch15.addGeometry(Part.LineSegment(Vector(38.000169, 16, 0), Vector(51, 16, 0)), False)
sketch15.addConstraint(Sketcher.Constraint("Coincident", 0, 2, 1, 1))
sketch15.addConstraint(Sketcher.Constraint("Coincident", 1, 2, 2, 1))
sketch15.addConstraint(Sketcher.Constraint("Coincident", 2, 2, 3, 1))
sketch15.addConstraint(Sketcher.Constraint("Coincident", 3, 2, 0, 1))
sketch15.addConstraint(Sketcher.Constraint("Vertical", 0))
sketch15.addConstraint(Sketcher.Constraint("Horizontal", 1))
sketch15.addConstraint(Sketcher.Constraint("Vertical", 2))
sketch15.addConstraint(Sketcher.Constraint("Horizontal", 3))
sketch15.addConstraint(Sketcher.Constraint("DistanceY", 0, 1, 0, 2, Q("12.2 mm")))
sketch15.addConstraint(Sketcher.Constraint("DistanceX", -1, 1, 0, 2, Q("51 mm")))
sketch15.addConstraint(Sketcher.Constraint("DistanceY", -1, 1, 2, 2, Q("16 mm")))
sketch15.addConstraint(Sketcher.Constraint("DistanceX", 1, 2, 1, 1, Q("12.999831 mm")))
pocket13 = doc.addObject("PartDesign::Pocket", "Pocket012")
body.addObject(pocket13)
pocket13.Profile = sketch15
pocket13.Length = 5

# Sketch on XZ plane
sketch16 = doc.addObject("Sketcher::SketchObject", "Sketch015")
body.addObject(sketch16)
sketch16.AttachmentSupport = (doc.XZ_Plane, [""])
sketch16.MapMode = "FlatFace"
sketch16.AttachmentOffset = App.Placement(Vector(0, 0, -45.000169), App.Rotation())
sketch16.addGeometry(Part.LineSegment(Vector(40.657087, -39.969279, 0), Vector(40.657087, 41.497741, 0)), False)
sketch16.addGeometry(Part.LineSegment(Vector(40.657087, 41.497741, 0), Vector(-40.809933, 41.497741, 0)), False)
sketch16.addGeometry(Part.LineSegment(Vector(-40.809933, 41.497741, 0), Vector(-40.809933, -39.969279, 0)), False)
sketch16.addGeometry(Part.LineSegment(Vector(-40.809933, -39.969279, 0), Vector(40.657087, -39.969279, 0)), False)
sketch16.addConstraint(Sketcher.Constraint("Coincident", 0, 2, 1, 1))
sketch16.addConstraint(Sketcher.Constraint("Coincident", 1, 2, 2, 1))
sketch16.addConstraint(Sketcher.Constraint("Coincident", 2, 2, 3, 1))
sketch16.addConstraint(Sketcher.Constraint("Coincident", 3, 2, 0, 1))
sketch16.addConstraint(Sketcher.Constraint("Vertical", 0))
sketch16.addConstraint(Sketcher.Constraint("Horizontal", 1))
sketch16.addConstraint(Sketcher.Constraint("Vertical", 2))
sketch16.addConstraint(Sketcher.Constraint("Horizontal", 3))
sketch16.addConstraint(Sketcher.Constraint("Equal", 3, 0))
sketch16.addConstraint(Sketcher.Constraint("DistanceX", 1, 2, 1, 1, Q("81.467019 mm")))
sketch16.addConstraint(Sketcher.Constraint("DistanceY", -1, 1, 0, 2, Q("41.497741 mm")))
sketch16.addConstraint(Sketcher.Constraint("DistanceX", -1, 1, 0, 2, Q("40.657087 mm")))
pocket14 = doc.addObject("PartDesign::Pocket", "Pocket013")
body.addObject(pocket14)
pocket14.Profile = sketch16
pocket14.Length = 10
pocket14.Reversed = True

# Sketch on XZ plane
sketch17 = doc.addObject("Sketcher::SketchObject", "Sketch016")
body.addObject(sketch17)
sketch17.AttachmentSupport = (doc.XZ_Plane, [""])
sketch17.MapMode = "FlatFace"
sketch17.AttachmentOffset = App.Placement(Vector(0, 0, -51.998685), App.Rotation())
sketch17.addGeometry(Part.LineSegment(Vector(-10.1, 6.25, 0), Vector(-10.1, -6.25, 0)), False)
sketch17.addGeometry(Part.LineSegment(Vector(-10.1, -6.25, 0), Vector(-7, -6.25, 0)), False)
sketch17.addGeometry(Part.LineSegment(Vector(-7, -6.25, 0), Vector(-7, 6.25, 0)), False)
sketch17.addGeometry(Part.LineSegment(Vector(-7, 6.25, 0), Vector(-10.1, 6.25, 0)), False)
sketch17.addConstraint(Sketcher.Constraint("Coincident", 0, 2, 1, 1))
sketch17.addConstraint(Sketcher.Constraint("Coincident", 1, 2, 2, 1))
sketch17.addConstraint(Sketcher.Constraint("Coincident", 2, 2, 3, 1))
sketch17.addConstraint(Sketcher.Constraint("Coincident", 3, 2, 0, 1))
sketch17.addConstraint(Sketcher.Constraint("Vertical", 0))
sketch17.addConstraint(Sketcher.Constraint("Horizontal", 1))
sketch17.addConstraint(Sketcher.Constraint("Vertical", 2))
sketch17.addConstraint(Sketcher.Constraint("Horizontal", 3))
sketch17.addConstraint(Sketcher.Constraint("DistanceX", 1, 1, 1, 2, Q("3.1 mm")))
sketch17.addConstraint(Sketcher.Constraint("DistanceY", 0, 2, 0, 1, Q("12.5 mm")))
sketch17.addConstraint(Sketcher.Constraint("DistanceX", 1, 2, -1, 1, Q("7 mm")))
sketch17.addConstraint(Sketcher.Constraint("DistanceY", 0, 2, -1, 1, Q("6.25 mm")))
pocket15 = doc.addObject("PartDesign::Pocket", "Pocket014")
body.addObject(pocket15)
pocket15.Profile = sketch17
pocket15.Length = 3.001315

doc.recompute()
